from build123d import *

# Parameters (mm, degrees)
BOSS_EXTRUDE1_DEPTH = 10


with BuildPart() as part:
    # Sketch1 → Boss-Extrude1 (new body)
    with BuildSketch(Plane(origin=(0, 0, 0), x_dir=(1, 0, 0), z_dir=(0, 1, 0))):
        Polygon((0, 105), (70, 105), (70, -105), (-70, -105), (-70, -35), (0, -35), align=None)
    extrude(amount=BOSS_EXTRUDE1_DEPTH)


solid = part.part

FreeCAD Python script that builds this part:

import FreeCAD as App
import Part
import Sketcher


def add_polygon(sketch, points):
    """Adds a closed chain of lines whose ends are joined by coincident constraints."""
    first, n = sketch.GeometryCount, len(points)
    for a, b in zip(points, points[1:] + points[:1]):
        sketch.addGeometry(Part.LineSegment(App.Vector(*a, 0), App.Vector(*b, 0)), False)
    for i in range(n):
        sketch.addConstraint(Sketcher.Constraint("Coincident", first + i, 2, first + (i + 1) % n, 1))

doc = App.newDocument("Part")
body = doc.addObject("PartDesign::Body", "Body")

# Sketch on XZ plane
sketch1 = doc.addObject("Sketcher::SketchObject", "Sketch")
body.addObject(sketch1)
sketch1.AttachmentSupport = (doc.XZ_Plane, [""])
sketch1.MapMode = "FlatFace"
add_polygon(sketch1, [(70, -105), (0, -105), (0, 35), (-70, 35), (-70, 105), (70, 105)])  # lines 0-5
sketch1.addConstraint([
    Sketcher.Constraint("Horizontal", 0),
    Sketcher.Constraint("Vertical", 1),
    Sketcher.Constraint("Horizontal", 2),
    Sketcher.Constraint("Vertical", 3),
    Sketcher.Constraint("Horizontal", 4),
    Sketcher.Constraint("Vertical", 5),
    Sketcher.Constraint("Symmetric", 3, 2, 5, 2, -1, 1),
    Sketcher.Constraint("PointOnObject", 0, 2, -2),
    Sketcher.Constraint("Equal", 4, 1),
    Sketcher.Constraint("Equal", 2, 3),
    Sketcher.Constraint("DistanceX", 0, 2, 0, 1, 70.0),
])
pad1 = doc.addObject("PartDesign::Pad", "Pad")
body.addObject(pad1)
pad1.Profile = sketch1
pad1.Length = 10
pad1.Reversed = True

doc.recompute()
